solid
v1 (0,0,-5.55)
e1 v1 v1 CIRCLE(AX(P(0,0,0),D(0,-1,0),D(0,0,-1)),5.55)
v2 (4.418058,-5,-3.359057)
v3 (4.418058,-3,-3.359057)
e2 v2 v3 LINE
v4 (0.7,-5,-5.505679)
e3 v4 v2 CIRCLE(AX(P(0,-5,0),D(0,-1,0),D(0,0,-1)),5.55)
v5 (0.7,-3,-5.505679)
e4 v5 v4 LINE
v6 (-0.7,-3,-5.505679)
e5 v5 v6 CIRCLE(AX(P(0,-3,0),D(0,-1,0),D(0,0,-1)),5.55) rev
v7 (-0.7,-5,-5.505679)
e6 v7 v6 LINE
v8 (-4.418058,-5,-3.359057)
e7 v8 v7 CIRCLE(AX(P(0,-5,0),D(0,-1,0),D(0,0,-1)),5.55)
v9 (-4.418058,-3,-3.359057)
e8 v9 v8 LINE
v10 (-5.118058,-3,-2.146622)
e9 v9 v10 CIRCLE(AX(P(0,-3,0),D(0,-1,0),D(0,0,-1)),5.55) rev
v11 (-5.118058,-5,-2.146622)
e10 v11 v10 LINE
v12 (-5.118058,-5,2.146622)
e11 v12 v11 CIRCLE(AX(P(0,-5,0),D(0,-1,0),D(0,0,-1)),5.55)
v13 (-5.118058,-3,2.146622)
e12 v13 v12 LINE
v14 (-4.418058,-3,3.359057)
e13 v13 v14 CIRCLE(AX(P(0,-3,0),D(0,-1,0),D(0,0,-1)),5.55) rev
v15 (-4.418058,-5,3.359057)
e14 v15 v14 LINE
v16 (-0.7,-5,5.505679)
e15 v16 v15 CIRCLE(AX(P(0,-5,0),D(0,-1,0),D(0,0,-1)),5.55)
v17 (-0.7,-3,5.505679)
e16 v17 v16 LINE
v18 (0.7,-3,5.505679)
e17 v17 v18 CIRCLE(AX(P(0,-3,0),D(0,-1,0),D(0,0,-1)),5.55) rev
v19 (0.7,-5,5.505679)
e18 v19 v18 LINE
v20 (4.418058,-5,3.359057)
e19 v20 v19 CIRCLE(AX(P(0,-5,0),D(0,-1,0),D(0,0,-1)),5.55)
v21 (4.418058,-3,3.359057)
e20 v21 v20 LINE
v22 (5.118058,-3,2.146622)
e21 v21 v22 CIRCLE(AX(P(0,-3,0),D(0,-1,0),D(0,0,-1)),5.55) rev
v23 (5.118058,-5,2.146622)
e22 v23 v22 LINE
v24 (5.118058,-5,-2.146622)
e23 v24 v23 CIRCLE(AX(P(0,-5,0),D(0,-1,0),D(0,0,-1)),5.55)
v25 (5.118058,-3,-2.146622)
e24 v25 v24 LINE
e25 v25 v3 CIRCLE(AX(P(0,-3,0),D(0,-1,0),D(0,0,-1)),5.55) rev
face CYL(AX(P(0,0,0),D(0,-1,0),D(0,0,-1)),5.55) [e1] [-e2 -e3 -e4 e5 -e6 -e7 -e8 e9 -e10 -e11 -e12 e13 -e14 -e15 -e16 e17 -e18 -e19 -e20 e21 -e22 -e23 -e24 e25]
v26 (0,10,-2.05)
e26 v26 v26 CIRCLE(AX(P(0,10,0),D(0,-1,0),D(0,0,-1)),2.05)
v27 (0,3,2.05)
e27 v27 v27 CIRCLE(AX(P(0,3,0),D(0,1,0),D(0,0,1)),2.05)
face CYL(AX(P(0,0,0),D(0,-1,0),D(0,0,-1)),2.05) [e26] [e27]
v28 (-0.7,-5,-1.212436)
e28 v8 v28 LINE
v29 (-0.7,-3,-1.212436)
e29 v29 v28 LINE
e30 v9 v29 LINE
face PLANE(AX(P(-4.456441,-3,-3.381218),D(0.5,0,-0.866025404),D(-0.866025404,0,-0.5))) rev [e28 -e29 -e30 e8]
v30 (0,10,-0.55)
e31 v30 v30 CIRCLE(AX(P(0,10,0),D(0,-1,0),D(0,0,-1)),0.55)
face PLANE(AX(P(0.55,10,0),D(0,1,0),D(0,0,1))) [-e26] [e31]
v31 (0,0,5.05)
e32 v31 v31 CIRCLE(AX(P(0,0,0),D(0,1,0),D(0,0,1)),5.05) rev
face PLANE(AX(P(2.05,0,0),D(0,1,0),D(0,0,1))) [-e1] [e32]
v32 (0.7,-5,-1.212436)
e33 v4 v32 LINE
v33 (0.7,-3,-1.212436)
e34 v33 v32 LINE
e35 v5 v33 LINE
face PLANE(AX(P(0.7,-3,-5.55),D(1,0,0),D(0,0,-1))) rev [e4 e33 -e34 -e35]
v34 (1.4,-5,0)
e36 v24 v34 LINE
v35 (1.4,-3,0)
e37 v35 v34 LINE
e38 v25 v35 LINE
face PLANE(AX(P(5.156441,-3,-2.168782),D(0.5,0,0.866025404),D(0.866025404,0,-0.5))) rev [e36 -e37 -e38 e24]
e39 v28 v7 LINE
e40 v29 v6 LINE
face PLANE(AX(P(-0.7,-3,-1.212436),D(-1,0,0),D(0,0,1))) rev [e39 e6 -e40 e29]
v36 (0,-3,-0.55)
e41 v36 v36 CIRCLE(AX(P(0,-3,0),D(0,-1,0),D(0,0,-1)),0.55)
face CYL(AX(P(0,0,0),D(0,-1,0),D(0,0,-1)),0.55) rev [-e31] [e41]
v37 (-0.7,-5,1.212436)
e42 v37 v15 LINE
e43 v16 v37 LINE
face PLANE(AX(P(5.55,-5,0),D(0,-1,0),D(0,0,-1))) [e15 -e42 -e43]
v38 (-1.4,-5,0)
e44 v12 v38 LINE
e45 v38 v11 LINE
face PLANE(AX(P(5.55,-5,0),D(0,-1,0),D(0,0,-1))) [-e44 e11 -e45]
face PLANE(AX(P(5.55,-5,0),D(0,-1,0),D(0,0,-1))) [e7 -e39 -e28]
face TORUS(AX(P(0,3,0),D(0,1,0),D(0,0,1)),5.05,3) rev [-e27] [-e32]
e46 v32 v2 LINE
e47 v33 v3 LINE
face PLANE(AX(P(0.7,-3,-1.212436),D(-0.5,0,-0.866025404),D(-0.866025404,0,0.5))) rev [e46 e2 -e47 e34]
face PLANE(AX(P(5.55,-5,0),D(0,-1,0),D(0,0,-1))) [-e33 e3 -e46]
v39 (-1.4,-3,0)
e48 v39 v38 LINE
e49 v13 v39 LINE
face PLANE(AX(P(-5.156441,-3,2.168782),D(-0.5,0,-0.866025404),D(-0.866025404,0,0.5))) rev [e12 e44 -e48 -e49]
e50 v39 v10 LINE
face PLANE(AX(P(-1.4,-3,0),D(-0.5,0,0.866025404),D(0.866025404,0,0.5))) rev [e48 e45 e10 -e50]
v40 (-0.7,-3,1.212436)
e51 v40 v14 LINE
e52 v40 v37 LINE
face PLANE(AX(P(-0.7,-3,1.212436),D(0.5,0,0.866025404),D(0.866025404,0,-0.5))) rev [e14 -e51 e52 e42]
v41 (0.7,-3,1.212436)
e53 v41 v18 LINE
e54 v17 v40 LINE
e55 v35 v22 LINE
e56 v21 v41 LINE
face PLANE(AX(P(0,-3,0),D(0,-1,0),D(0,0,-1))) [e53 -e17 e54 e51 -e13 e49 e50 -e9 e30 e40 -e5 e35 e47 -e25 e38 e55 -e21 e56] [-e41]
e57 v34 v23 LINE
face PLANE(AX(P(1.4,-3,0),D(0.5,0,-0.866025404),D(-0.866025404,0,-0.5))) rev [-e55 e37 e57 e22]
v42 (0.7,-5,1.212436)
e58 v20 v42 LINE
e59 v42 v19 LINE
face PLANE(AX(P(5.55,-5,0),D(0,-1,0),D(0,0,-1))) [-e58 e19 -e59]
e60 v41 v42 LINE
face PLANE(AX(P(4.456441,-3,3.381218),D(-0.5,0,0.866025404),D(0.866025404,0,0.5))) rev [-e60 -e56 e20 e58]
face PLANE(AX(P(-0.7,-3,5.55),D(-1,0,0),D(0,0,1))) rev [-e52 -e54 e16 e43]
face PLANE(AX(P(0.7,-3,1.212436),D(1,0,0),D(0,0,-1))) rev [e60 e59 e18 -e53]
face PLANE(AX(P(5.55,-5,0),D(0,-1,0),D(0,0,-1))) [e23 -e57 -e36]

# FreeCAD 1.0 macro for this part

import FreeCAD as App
import Part
import Sketcher
Q = App.Units.Quantity


def edges_at(feature, points):
    """Names of the edges that pass closest to the given points."""
    edges = feature.Shape.Edges
    near = lambda p: min(range(len(edges)), key=lambda i: edges[i].distToShape(Part.Vertex(*p))[0])
    return sorted({f"Edge{near(p) + 1}" for p in points})

doc = App.newDocument("Part")
body = doc.addObject("PartDesign::Body", "Body")

# Sketch on XY plane
sketch1 = body.newObject("Sketcher::SketchObject", "Sketch")
sketch1.AttachmentSupport = (doc.getObject("XY_Plane"), [""])
sketch1.MapMode = "FlatFace"
sketch1.addGeometry([
    Part.LineSegment(App.Vector(2, 10, 0), App.Vector(0.6, 10, 0)),  # 0
    Part.LineSegment(App.Vector(0.6, 10, 0), App.Vector(0.6, -5, 0)),  # 1
    Part.LineSegment(App.Vector(0.6, -5, 0), App.Vector(5.5, -5, 0)),  # 2
    Part.LineSegment(App.Vector(5.5, -5, 0), App.Vector(5.5, 0, 0)),  # 3
    Part.LineSegment(App.Vector(5.5, 0, 0), App.Vector(2, 0, 0)),  # 4
    Part.LineSegment(App.Vector(2, 0, 0), App.Vector(2, 10, 0)),  # 5
], False)
sketch1.addConstraint([
    Sketcher.Constraint("Coincident", 0, 2, 1, 1),
    Sketcher.Constraint("Coincident", 1, 2, 2, 1),
    Sketcher.Constraint("Coincident", 2, 2, 3, 1),
    Sketcher.Constraint("Coincident", 3, 2, 4, 1),
    Sketcher.Constraint("Coincident", 4, 2, 5, 1),
    Sketcher.Constraint("Coincident", 5, 2, 0, 1),
    Sketcher.Constraint("Horizontal", 0),
    Sketcher.Constraint("Vertical", 1),
    Sketcher.Constraint("Horizontal", 2),
    Sketcher.Constraint("Vertical", 3),
    Sketcher.Constraint("Horizontal", 4),
    Sketcher.Constraint("Vertical", 5),
    Sketcher.Constraint("PointOnObject", 3, 2, -1),
    Sketcher.Constraint("Equal", 2, 3),
    Sketcher.Constraint("DistanceX", 2, 1, 2, 2, Q("5 mm")),
    Sketcher.Constraint("DistanceY", 1, 2, 1, 1, Q("15 mm")),
    Sketcher.Constraint("DistanceX", 0, 2, 0, 1, Q("1.5 mm")),
    Sketcher.Constraint("DistanceX", -1, 1, 0, 2, Q("0.55 mm")),
])
revolution = body.newObject("PartDesign::Revolution", "Revolution")
revolution.Profile = sketch1
revolution.ReferenceAxis = (sketch1, ["V_Axis"])
revolution.Angle = 360

# Sketch on XZ plane
sketch2 = body.newObject("Sketcher::SketchObject", "Sketch001")
sketch2.AttachmentSupport = (doc.getObject("XZ_Plane"), [""])
sketch2.MapMode = "FlatFace"
sketch2.AttachmentOffset = App.Placement(App.Vector(0, 0, 5), App.Rotation())
sketch2.addGeometry([
    Part.LineSegment(App.Vector(-0.7, 5.5, 0), App.Vector(-0.7, 1.2, 0)),  # 0
    Part.LineSegment(App.Vector(-0.7, 1.2, 0), App.Vector(-4.5, 3.4, 0)),  # 1
    Part.LineSegment(App.Vector(-4.5, 3.4, 0), App.Vector(-5.2, 2.2, 0)),  # 2
    Part.LineSegment(App.Vector(-5.2, 2.2, 0), App.Vector(-1.4, 0, 0)),  # 3
    Part.LineSegment(App.Vector(-1.4, 0, 0), App.Vector(-5.2, -2.2, 0)),  # 4
    Part.LineSegment(App.Vector(-5.2, -2.2, 0), App.Vector(-4.5, -3.4, 0)),  # 5
    Part.LineSegment(App.Vector(-4.5, -3.4, 0), App.Vector(-0.7, -1.2, 0)),  # 6
    Part.LineSegment(App.Vector(-0.7, -1.2, 0), App.Vector(-0.7, -5.5, 0)),  # 7
    Part.LineSegment(App.Vector(-0.7, -5.5, 0), App.Vector(0.7, -5.5, 0)),  # 8
    Part.LineSegment(App.Vector(0.7, -5.5, 0), App.Vector(0.7, -1.2, 0)),  # 9
    Part.LineSegment(App.Vector(0.7, -1.2, 0), App.Vector(4.5, -3.4, 0)),  # 10
    Part.LineSegment(App.Vector(4.5, -3.4, 0), App.Vector(5.2, -2.2, 0)),  # 11
    Part.LineSegment(App.Vector(5.2, -2.2, 0), App.Vector(1.4, 0, 0)),  # 12
    Part.LineSegment(App.Vector(1.4, 0, 0), App.Vector(5.2, 2.2, 0)),  # 13
    Part.LineSegment(App.Vector(5.2, 2.2, 0), App.Vector(4.5, 3.4, 0)),  # 14
    Part.LineSegment(App.Vector(4.5, 3.4, 0), App.Vector(0.7, 1.2, 0)),  # 15
    Part.LineSegment(App.Vector(0.7, 1.2, 0), App.Vector(0.7, 5.5, 0)),  # 16
    Part.LineSegment(App.Vector(0.7, 5.5, 0), App.Vector(-0.7, 5.5, 0)),  # 17
], False)
sketch2.addConstraint([
    Sketcher.Constraint("Coincident", 0, 2, 1, 1),
    Sketcher.Constraint("Coincident", 1, 2, 2, 1),
    Sketcher.Constraint("Coincident", 2, 2, 3, 1),
    Sketcher.Constraint("Coincident", 3, 2, 4, 1),
    Sketcher.Constraint("Coincident", 4, 2, 5, 1),
    Sketcher.Constraint("Coincident", 5, 2, 6, 1),
    Sketcher.Constraint("Coincident", 6, 2, 7, 1),
    Sketcher.Constraint("Coincident", 7, 2, 8, 1),
    Sketcher.Constraint("Coincident", 8, 2, 9, 1),
    Sketcher.Constraint("Coincident", 9, 2, 10, 1),
    Sketcher.Constraint("Coincident", 10, 2, 11, 1),
    Sketcher.Constraint("Coincident", 11, 2, 12, 1),
    Sketcher.Constraint("Coincident", 12, 2, 13, 1),
    Sketcher.Constraint("Coincident", 13, 2, 14, 1),
    Sketcher.Constraint("Coincident", 14, 2, 15, 1),
    Sketcher.Constraint("Coincident", 15, 2, 16, 1),
    Sketcher.Constraint("Coincident", 16, 2, 17, 1),
    Sketcher.Constraint("Coincident", 17, 2, 0, 1),
    Sketcher.Constraint("Vertical", 0),
    Sketcher.Constraint("Vertical", 7),
    Sketcher.Constraint("Horizontal", 8),
    Sketcher.Constraint("Vertical", 9),
    Sketcher.Constraint("Vertical", 16),
    Sketcher.Constraint("Horizontal", 17),
    Sketcher.Constraint("Symmetric", 0, 2, 9, 2, -1, 1),
    Sketcher.Constraint("Symmetric", 1, 2, 10, 2, -1, 1),
    Sketcher.Constraint("Symmetric", 2, 2, 11, 2, -1, 1),
    Sketcher.Constraint("Symmetric", 3, 2, 12, 2, -1, 1),
    Sketcher.Constraint("Symmetric", 4, 2, 13, 2, -1, 1),
    Sketcher.Constraint("Symmetric", 5, 2, 14, 2, -1, 1),
    Sketcher.Constraint("Symmetric", 6, 2, 15, 2, -1, 1),
    Sketcher.Constraint("Symmetric", 6, 2, 9, 2, -2),
    Sketcher.Constraint("Symmetric", 5, 2, 10, 2, -2),
    Sketcher.Constraint("Symmetric", 4, 2, 11, 2, -2),
    Sketcher.Constraint("PointOnObject", 3, 2, -1),
    Sketcher.Constraint("Perpendicular", 1, 2),
    Sketcher.Constraint("Perpendicular", 2, 3),
    Sketcher.Constraint("Equal", 0, 7),
    Sketcher.Constraint("Equal", 1, 3),
    Sketcher.Constraint("Angle", 1, Q("150 deg")),
    Sketcher.Constraint("DistanceX", 8, 1, 8, 2, Q("1.4 mm")),
    Sketcher.Constraint("Distance", 2, Q("1.4 mm")),
    Sketcher.Constraint("DistanceY", 7, 2, -1, 1, Q("5.55 mm")),
    Sketcher.Constraint("DistanceY", 4, 2, 1, 2, Q("5.55 mm")),
])
pocket1 = body.newObject("PartDesign::Pocket", "Pocket")
pocket1.Profile = sketch2
pocket1.Length = 2
doc.recompute()

fillet = body.newObject("PartDesign::Fillet", "Fillet")
fillet.Base = (pocket1, edges_at(pocket1, [(-2.05, 0, 0)]))
fillet.Radius = 3

doc.recompute()
